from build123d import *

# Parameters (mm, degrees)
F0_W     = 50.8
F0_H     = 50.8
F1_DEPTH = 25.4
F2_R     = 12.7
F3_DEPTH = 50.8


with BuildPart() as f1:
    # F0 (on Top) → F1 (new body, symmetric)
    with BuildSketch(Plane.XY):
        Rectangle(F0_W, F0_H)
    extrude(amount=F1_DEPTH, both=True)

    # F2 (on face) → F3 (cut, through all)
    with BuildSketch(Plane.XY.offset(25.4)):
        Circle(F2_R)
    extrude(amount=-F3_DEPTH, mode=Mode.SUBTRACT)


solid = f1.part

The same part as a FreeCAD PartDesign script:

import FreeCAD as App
import Part
import Sketcher
from FreeCAD import Vector
Q = App.Units.Quantity

doc = App.newDocument("Part")
body = doc.addObject("PartDesign::Body", "Body")

# Sketch on XY plane
sketch1 = doc.addObject("Sketcher::SketchObject", "Sketch")
body.addObject(sketch1)
sketch1.AttachmentSupport = (doc.XY_Plane, [""])
sketch1.MapMode = "FlatFace"
sketch1.addGeometry([
    Part.LineSegment(Vector(-25, 25, 0), Vector(-25, -25, 0)),
    Part.LineSegment(Vector(-25, -25, 0), Vector(25, -25, 0)),
    Part.LineSegment(Vector(25, -25, 0), Vector(25, 25, 0)),
    Part.LineSegment(Vector(25, 25, 0), Vector(-25, 25, 0)),
], False)
sketch1.addConstraint([
    Sketcher.Constraint("Coincident", 0, 2, 1, 1),
    Sketcher.Constraint("Coincident", 1, 2, 2, 1),
    Sketcher.Constraint("Coincident", 2, 2, 3, 1),
    Sketcher.Constraint("Coincident", 3, 2, 0, 1),
    Sketcher.Constraint("Vertical", 0),
    Sketcher.Constraint("Horizontal", 1),
    Sketcher.Constraint("Vertical", 2),
    Sketcher.Constraint("Horizontal", 3),
    Sketcher.Constraint("Symmetric", 0, 2, 2, 2, -1, 1),
    Sketcher.Constraint("Equal", 3, 0),
    Sketcher.Constraint("DistanceX", 1, 1, 1, 2, Q("2 in")),
])
pad1 = doc.addObject("PartDesign::Pad", "Pad")
body.addObject(pad1)
pad1.Profile = sketch1
pad1.Length = Q("2 in")
pad1.Midplane = True

# Sketch on XY plane
sketch2 = doc.addObject("Sketcher::SketchObject", "Sketch001")
body.addObject(sketch2)
sketch2.AttachmentSupport = (doc.XY_Plane, [""])
sketch2.MapMode = "FlatFace"
sketch2.AttachmentOffset = App.Placement(Vector(0, 0, 1 * 25.4), App.Rotation())
sketch2.addGeometry(Part.Circle(Vector(0, 0, 0), Vector(0, 0, 1), 13), False)
sketch2.addConstraint([
    Sketcher.Constraint("Coincident", 0, 3, -1, 1),
    Sketcher.Constraint("Diameter", 0, Q("1 in")),
])
pocket1 = doc.addObject("PartDesign::Pocket", "Pocket")
body.addObject(pocket1)
pocket1.Profile = sketch2
pocket1.Type = "ThroughAll"

doc.recompute()
